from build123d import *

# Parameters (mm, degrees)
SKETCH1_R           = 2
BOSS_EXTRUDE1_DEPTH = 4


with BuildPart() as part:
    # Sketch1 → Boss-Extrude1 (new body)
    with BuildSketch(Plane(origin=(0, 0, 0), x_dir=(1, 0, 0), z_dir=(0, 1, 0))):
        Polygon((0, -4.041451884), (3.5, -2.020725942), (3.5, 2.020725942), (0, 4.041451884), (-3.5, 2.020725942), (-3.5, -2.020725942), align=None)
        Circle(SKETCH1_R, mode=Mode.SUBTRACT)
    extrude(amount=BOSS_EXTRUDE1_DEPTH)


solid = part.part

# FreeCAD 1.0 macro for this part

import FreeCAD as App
import Part
import Sketcher
Q = App.Units.Quantity


def add_polygon(sketch, points):
    """Adds a closed chain of lines whose ends are joined by coincident constraints."""
    first, n = sketch.GeometryCount, len(points)
    for a, b in zip(points, points[1:] + points[:1]):
        sketch.addGeometry(Part.LineSegment(App.Vector(*a, 0), App.Vector(*b, 0)), False)
    for i in range(n):
        sketch.addConstraint(Sketcher.Constraint("Coincident", first + i, 2, first + (i + 1) % n, 1))

doc = App.newDocument("Part")
body = doc.addObject("PartDesign::Body", "Body")

# Sketch on XZ plane
sketch1 = body.newObject("Sketcher::SketchObject", "Sketch")
sketch1.AttachmentSupport = (doc.getObject("XZ_Plane"), [""])
sketch1.MapMode = "FlatFace"
add_polygon(sketch1, [(0, 4), (3.5, 2), (3.5, -2), (0, -4), (-3.5, -2), (-3.5, 2)])  # lines 0-5
sketch1.addGeometry(Part.Circle(App.Vector(0, 0, 0), App.Vector(0, 0, 1), 2), False)  # 6
sketch1.addConstraint([
    Sketcher.Constraint("Vertical", 1),
    Sketcher.Constraint("Vertical", 4),
    Sketcher.Constraint("Coincident", 6, 3, -1, 1),
    Sketcher.Constraint("Symmetric", 0, 2, 3, 2, -1, 1),
    Sketcher.Constraint("Symmetric", 2, 2, 5, 2, -1, 1),
    Sketcher.Constraint("PointOnObject", 2, 2, -2),
    Sketcher.Constraint("Parallel", 2, 5),
    Sketcher.Constraint("Horizontal", 1, 2, 3, 2),
    Sketcher.Constraint("Diameter", 6, Q("4 mm")),
    Sketcher.Constraint("Angle", 0, Q("-30 deg")),
    Sketcher.Constraint("DistanceX", 3, 2, 1, 2, Q("7 mm")),
    Sketcher.Constraint("DistanceY", 1, 2, 1, 1, Q("4.041452 mm")),
])
pad1 = body.newObject("PartDesign::Pad", "Pad")
pad1.Profile = sketch1
pad1.Length = 4
pad1.Reversed = True

doc.recompute()
